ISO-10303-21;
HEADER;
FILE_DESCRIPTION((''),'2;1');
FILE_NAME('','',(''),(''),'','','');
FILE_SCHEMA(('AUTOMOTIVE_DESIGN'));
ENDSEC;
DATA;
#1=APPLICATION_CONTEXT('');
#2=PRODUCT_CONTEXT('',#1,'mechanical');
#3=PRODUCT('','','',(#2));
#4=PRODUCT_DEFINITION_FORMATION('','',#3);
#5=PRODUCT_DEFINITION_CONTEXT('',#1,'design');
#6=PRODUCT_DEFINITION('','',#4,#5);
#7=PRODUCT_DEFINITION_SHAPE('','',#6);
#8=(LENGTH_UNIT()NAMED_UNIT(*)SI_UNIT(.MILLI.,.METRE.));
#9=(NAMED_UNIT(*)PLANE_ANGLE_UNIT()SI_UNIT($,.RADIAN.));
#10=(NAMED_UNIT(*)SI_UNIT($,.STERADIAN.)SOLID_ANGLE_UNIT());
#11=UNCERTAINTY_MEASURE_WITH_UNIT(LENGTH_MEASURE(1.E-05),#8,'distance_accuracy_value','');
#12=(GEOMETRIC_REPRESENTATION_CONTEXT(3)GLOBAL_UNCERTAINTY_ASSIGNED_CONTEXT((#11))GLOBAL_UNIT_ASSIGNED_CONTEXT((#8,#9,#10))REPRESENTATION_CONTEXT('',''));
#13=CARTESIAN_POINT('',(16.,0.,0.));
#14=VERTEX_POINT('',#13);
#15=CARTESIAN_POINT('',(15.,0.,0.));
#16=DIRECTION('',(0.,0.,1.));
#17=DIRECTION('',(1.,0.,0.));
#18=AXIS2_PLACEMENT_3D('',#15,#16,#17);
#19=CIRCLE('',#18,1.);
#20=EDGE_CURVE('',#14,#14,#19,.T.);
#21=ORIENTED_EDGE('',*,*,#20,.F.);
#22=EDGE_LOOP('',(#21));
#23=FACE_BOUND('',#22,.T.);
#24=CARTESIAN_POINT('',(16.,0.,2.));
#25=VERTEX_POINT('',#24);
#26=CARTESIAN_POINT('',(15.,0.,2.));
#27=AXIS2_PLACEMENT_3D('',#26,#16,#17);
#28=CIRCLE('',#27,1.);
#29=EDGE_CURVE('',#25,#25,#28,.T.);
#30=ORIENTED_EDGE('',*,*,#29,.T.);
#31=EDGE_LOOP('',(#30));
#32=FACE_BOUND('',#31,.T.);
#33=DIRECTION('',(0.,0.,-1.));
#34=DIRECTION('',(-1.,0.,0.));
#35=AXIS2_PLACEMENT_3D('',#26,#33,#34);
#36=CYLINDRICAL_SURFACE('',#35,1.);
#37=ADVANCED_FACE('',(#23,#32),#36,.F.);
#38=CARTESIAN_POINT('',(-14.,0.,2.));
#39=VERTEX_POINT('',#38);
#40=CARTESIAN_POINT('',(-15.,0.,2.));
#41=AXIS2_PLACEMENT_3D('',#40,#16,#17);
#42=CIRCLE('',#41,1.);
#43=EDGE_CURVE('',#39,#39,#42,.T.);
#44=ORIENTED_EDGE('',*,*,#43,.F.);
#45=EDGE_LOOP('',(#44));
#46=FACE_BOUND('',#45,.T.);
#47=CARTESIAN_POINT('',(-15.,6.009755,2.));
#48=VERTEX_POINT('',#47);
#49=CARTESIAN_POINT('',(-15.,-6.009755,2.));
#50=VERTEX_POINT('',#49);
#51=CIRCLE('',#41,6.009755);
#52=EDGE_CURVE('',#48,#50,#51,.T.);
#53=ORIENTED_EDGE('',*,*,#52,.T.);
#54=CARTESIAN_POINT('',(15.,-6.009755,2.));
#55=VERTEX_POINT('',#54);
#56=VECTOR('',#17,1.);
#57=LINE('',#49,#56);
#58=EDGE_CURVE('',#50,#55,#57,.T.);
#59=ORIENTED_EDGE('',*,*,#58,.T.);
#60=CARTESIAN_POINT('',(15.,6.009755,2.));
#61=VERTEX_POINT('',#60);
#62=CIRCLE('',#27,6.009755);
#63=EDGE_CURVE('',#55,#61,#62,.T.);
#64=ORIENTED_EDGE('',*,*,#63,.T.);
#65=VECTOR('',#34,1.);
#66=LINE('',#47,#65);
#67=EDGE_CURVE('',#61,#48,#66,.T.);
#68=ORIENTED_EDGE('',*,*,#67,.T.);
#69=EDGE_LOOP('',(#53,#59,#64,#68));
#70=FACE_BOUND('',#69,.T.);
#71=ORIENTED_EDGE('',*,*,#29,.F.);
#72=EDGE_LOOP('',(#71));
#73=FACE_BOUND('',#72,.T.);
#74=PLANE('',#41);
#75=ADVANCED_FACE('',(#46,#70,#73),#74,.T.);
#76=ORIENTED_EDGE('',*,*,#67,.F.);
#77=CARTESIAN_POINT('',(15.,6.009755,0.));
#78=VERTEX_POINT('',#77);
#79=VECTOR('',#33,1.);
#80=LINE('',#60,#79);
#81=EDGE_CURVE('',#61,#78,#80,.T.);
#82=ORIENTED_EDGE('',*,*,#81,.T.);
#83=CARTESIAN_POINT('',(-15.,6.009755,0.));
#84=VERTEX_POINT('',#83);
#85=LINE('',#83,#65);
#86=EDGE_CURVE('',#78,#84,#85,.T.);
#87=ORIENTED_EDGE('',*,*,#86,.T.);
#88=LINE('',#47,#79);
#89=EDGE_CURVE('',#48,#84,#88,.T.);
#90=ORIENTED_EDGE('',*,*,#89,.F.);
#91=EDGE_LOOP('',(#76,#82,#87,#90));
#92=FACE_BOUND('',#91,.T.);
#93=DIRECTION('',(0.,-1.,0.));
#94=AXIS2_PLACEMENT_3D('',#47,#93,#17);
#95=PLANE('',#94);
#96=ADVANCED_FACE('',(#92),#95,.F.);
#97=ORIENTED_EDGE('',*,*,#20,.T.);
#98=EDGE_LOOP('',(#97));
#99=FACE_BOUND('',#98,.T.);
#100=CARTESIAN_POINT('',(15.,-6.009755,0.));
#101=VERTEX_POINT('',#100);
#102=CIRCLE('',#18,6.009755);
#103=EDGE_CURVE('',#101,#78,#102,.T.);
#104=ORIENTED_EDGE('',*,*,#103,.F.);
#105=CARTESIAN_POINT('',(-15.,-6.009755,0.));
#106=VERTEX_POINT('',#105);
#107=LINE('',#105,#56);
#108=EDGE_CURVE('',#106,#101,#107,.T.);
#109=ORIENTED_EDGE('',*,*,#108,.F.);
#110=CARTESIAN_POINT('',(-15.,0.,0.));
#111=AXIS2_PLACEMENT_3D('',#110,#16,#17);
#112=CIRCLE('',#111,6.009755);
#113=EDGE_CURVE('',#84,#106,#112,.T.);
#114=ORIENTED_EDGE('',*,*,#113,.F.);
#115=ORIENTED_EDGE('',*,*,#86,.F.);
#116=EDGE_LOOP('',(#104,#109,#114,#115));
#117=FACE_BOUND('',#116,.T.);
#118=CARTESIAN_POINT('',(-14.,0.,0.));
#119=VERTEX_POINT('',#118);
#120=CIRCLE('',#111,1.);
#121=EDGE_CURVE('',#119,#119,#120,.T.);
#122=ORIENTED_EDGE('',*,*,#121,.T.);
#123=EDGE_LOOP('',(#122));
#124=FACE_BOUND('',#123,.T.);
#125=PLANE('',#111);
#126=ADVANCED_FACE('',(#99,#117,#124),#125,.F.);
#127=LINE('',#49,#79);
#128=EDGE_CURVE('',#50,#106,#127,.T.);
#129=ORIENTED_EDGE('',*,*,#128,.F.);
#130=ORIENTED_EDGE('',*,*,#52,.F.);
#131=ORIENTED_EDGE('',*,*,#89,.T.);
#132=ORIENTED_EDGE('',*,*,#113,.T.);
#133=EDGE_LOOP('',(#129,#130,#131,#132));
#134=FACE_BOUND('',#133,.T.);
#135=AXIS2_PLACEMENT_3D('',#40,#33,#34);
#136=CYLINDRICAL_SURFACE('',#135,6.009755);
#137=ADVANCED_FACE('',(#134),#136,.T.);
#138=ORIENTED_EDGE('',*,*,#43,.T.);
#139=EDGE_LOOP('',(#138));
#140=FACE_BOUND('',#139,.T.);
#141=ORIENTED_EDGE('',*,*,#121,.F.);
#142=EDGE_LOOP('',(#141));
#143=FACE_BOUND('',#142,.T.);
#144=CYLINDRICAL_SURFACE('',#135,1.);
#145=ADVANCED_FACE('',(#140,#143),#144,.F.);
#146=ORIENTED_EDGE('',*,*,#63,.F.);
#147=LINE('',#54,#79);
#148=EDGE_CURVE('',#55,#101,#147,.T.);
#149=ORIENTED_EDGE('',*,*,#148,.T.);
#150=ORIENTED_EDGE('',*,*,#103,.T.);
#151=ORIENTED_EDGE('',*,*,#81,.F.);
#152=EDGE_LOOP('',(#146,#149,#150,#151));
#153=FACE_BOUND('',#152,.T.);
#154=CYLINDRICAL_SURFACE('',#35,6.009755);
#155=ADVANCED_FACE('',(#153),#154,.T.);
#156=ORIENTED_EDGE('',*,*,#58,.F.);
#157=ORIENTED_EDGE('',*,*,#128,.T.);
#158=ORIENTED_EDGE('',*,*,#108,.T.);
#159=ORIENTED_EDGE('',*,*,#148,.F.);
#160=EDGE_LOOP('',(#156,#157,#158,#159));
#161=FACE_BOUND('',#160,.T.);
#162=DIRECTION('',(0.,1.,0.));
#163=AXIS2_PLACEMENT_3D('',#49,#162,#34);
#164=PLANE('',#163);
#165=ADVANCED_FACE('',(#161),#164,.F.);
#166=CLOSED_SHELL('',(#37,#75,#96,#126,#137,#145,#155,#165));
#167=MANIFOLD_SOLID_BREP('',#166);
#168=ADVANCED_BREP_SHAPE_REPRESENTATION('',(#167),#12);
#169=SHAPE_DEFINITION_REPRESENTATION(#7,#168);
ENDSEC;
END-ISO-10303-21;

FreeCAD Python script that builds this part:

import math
import FreeCAD as App
import Part
import Sketcher
from FreeCAD import Vector
Q = App.Units.Quantity

doc = App.newDocument("Part")
body = doc.addObject("PartDesign::Body", "Body")

# Sketch on XY plane
sketch1 = body.newObject("Sketcher::SketchObject", "Sketch")
sketch1.AttachmentSupport = (doc.getObject("XY_Plane"), [""])
sketch1.MapMode = "FlatFace"
sketch1.addGeometry(Part.LineSegment(Vector(15, 6, 0), Vector(-15, 6, 0)), False)
sketch1.addGeometry(Part.ArcOfCircle(Part.Circle(Vector(-15, 0, 0), Vector(0, 0, 1), 6), math.radians(90), math.radians(270)), False)
sketch1.addGeometry(Part.LineSegment(Vector(-15, -6, 0), Vector(15, -6, 0)), False)
sketch1.addGeometry(Part.ArcOfCircle(Part.Circle(Vector(15, 0, 0), Vector(0, 0, 1), 6), math.radians(-90), math.radians(90)), False)
sketch1.addGeometry(Part.Circle(Vector(15, 0, 0), Vector(0, 0, 1), 1), False)
sketch1.addGeometry(Part.Circle(Vector(-15, 0, 0), Vector(0, 0, 1), 1), False)
sketch1.addConstraint(Sketcher.Constraint("Tangent", 0, 2, 1, 1))
sketch1.addConstraint(Sketcher.Constraint("Tangent", 1, 2, 2, 1))
sketch1.addConstraint(Sketcher.Constraint("Tangent", 2, 2, 3, 1))
sketch1.addConstraint(Sketcher.Constraint("Tangent", 3, 2, 0, 1))
sketch1.addConstraint(Sketcher.Constraint("Horizontal", 0))
sketch1.addConstraint(Sketcher.Constraint("Horizontal", 2))
sketch1.addConstraint(Sketcher.Constraint("Coincident", 4, 3, 3, 3))
sketch1.addConstraint(Sketcher.Constraint("Coincident", 5, 3, 1, 3))
sketch1.addConstraint(Sketcher.Constraint("Equal", 4, 5))
sketch1.addConstraint(Sketcher.Constraint("Symmetric", 1, 3, 3, 3, -1, 1))
sketch1.addConstraint(Sketcher.Constraint("Diameter", 4, Q("2 mm")))
sketch1.addConstraint(Sketcher.Constraint("DistanceX", 0, 2, 0, 1, Q("30 mm")))
sketch1.addConstraint(Sketcher.Constraint("Radius", 1, Q("6.009755 mm")))
pad1 = body.newObject("PartDesign::Pad", "Pad")
pad1.Profile = sketch1
pad1.Length = 2

doc.recompute()
